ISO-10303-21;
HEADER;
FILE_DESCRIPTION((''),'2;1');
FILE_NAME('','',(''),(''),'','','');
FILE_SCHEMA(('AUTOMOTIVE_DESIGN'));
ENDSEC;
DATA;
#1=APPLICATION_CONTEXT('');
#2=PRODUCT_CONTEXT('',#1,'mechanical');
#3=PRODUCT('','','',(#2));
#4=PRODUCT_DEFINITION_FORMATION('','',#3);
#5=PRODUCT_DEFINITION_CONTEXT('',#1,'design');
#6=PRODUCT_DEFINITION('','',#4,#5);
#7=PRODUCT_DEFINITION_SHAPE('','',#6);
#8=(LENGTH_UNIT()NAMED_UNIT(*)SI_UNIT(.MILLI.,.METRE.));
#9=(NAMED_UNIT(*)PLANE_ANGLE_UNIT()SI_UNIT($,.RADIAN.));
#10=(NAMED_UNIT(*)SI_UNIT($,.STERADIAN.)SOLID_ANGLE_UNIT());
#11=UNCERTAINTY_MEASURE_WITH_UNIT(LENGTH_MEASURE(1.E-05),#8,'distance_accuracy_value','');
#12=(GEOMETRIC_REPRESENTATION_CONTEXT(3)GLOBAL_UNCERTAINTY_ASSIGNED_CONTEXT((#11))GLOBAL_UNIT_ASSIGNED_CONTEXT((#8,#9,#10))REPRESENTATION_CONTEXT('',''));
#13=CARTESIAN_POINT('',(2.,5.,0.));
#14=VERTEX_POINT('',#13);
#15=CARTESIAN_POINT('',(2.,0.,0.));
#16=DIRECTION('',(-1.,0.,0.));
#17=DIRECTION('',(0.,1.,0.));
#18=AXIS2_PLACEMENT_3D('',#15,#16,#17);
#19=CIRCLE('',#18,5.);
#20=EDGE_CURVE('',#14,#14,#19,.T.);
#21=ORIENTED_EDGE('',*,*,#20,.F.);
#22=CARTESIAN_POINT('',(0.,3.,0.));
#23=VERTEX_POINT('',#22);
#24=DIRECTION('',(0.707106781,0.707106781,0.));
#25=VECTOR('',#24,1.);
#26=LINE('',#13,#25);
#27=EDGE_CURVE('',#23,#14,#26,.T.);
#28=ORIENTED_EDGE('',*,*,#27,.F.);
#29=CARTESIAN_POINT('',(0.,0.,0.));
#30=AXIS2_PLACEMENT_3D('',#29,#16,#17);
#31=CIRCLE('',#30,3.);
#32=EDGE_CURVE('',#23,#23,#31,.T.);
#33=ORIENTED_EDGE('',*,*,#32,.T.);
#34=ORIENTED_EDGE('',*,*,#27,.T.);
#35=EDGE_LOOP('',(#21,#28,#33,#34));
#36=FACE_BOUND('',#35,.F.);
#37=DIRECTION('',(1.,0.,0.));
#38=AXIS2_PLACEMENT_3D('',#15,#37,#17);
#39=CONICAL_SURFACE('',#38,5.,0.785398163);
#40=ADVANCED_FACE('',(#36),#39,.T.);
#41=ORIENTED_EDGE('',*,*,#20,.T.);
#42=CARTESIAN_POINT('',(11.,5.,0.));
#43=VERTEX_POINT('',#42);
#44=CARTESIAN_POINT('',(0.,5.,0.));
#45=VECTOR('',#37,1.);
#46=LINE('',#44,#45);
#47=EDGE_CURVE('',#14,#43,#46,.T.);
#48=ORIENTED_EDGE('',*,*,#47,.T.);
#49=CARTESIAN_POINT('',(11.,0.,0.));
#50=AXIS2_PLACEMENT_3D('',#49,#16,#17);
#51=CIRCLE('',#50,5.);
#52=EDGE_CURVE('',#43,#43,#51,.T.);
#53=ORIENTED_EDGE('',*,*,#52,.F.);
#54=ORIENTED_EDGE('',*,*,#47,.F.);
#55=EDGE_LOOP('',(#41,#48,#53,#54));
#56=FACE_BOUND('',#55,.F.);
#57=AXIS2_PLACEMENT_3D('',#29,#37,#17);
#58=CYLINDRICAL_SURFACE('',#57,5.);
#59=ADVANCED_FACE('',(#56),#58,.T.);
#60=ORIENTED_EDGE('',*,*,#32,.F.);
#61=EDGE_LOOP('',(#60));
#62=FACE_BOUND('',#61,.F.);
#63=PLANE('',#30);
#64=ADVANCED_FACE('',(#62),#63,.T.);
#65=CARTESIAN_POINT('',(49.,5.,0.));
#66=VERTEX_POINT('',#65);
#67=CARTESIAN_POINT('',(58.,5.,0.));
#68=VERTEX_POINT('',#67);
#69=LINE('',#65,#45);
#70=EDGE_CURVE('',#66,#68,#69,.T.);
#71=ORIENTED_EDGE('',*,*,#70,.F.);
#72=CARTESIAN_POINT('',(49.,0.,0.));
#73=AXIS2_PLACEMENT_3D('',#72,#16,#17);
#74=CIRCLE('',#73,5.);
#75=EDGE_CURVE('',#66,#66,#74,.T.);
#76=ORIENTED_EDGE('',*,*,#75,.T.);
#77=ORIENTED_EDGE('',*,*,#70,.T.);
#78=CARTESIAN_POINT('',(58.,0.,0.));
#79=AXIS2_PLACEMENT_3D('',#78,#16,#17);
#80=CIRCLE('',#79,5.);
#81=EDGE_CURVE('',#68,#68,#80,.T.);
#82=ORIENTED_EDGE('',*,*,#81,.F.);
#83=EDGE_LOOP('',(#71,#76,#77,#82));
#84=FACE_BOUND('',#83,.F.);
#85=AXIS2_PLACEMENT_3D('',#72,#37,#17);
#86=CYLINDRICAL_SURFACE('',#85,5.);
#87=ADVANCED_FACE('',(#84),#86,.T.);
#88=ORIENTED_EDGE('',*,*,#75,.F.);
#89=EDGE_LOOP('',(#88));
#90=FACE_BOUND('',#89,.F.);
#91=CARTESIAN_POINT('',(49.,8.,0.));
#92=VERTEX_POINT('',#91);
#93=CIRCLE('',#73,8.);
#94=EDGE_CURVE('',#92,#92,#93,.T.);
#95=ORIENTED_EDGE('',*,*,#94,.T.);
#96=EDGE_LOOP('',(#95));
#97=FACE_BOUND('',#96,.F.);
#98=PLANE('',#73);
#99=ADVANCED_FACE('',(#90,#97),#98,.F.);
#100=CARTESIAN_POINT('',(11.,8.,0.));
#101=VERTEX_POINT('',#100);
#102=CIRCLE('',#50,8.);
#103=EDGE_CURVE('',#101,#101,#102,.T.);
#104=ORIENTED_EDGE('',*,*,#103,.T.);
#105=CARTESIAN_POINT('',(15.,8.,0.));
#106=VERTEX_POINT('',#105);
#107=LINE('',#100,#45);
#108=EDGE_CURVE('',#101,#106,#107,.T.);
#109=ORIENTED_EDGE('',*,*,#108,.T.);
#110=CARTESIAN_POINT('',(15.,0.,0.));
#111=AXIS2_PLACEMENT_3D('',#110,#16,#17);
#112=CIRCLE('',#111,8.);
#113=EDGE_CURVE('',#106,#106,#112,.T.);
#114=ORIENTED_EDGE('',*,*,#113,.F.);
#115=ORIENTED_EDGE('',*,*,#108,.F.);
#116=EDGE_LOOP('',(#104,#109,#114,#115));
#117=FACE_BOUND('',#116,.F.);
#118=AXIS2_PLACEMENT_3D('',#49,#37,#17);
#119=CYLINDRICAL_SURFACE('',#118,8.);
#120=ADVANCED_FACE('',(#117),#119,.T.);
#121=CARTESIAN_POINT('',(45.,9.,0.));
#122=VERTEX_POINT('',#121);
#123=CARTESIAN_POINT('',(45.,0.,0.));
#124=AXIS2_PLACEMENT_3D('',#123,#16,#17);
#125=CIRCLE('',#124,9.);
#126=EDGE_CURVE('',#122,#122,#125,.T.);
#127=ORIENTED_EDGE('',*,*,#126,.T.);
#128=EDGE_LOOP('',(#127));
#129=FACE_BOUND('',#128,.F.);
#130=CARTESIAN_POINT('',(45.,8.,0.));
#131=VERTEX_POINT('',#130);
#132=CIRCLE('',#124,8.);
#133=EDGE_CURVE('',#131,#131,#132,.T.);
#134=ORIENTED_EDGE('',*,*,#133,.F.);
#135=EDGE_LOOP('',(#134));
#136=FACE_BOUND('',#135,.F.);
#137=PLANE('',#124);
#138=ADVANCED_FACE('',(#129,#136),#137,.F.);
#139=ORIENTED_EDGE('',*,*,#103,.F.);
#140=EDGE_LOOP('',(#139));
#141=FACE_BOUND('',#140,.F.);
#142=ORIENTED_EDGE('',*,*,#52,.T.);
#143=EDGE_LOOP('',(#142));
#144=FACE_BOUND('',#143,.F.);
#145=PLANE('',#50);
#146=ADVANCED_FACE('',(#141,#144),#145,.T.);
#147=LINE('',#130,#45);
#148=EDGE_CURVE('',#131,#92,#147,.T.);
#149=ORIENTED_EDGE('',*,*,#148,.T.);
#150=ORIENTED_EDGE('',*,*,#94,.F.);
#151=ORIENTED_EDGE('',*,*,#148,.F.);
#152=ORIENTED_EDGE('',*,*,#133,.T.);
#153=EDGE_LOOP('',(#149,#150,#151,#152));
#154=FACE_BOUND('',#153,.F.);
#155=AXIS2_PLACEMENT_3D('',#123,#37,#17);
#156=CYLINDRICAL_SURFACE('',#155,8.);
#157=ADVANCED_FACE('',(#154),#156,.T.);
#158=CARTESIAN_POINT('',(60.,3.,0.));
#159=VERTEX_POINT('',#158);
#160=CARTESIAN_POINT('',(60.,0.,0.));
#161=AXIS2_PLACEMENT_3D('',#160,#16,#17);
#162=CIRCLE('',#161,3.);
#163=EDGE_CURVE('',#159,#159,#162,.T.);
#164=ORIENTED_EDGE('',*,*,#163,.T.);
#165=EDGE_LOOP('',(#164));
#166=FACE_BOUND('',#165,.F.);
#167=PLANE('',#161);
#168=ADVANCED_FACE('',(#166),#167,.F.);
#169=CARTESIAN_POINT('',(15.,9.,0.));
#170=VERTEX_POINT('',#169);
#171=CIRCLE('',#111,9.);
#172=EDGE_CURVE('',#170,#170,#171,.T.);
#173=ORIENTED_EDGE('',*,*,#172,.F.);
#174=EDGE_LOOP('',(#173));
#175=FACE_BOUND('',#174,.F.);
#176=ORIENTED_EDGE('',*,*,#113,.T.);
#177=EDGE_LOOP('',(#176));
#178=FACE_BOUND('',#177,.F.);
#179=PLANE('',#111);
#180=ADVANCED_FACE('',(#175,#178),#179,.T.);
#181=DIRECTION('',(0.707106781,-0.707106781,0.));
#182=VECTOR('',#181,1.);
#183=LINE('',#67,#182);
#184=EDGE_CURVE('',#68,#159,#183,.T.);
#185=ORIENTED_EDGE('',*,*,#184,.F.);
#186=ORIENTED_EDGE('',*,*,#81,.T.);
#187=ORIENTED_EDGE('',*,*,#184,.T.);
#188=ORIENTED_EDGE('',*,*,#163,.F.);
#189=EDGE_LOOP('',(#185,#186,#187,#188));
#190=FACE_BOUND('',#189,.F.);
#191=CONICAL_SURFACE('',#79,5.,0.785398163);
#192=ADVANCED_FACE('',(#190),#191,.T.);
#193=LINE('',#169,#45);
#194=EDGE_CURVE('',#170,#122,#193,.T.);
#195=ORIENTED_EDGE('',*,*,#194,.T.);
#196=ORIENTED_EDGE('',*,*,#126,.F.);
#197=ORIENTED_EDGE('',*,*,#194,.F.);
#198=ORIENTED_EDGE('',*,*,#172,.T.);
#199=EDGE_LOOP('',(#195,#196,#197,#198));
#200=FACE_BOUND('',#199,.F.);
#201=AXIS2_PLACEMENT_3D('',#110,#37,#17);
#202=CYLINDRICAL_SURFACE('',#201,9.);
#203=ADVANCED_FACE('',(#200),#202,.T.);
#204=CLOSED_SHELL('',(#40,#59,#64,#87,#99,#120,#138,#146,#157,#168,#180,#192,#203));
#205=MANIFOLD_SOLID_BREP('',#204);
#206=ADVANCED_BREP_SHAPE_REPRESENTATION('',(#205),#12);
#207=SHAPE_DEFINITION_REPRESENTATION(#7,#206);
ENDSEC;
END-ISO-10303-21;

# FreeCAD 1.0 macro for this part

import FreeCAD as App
import Part
import Sketcher
from FreeCAD import Vector


def edges_at(feature, points):
    """Names of the edges that pass closest to the given points."""
    edges = feature.Shape.Edges
    near = lambda p: min(range(len(edges)), key=lambda i: edges[i].distToShape(Part.Vertex(*p))[0])
    return sorted({f"Edge{near(p) + 1}" for p in points})

doc = App.newDocument("Part")
body = doc.addObject("PartDesign::Body", "Body")

sketch1 = doc.addObject("Sketcher::SketchObject", "Sketch")
body.addObject(sketch1)
sketch1.AttachmentSupport = (doc.XY_Plane, [""])
sketch1.MapMode = "FlatFace"
sketch1.addGeometry([
    Part.LineSegment(Vector(0, 5, 0), Vector(0, 0, 0)),
    Part.LineSegment(Vector(0, 0, 0), Vector(60, 0, 0)),
    Part.LineSegment(Vector(60, 0, 0), Vector(60, 5, 0)),
    Part.LineSegment(Vector(60, 5, 0), Vector(49, 5, 0)),
    Part.LineSegment(Vector(49, 5, 0), Vector(49, 8, 0)),
    Part.LineSegment(Vector(49, 8, 0), Vector(45, 8, 0)),
    Part.LineSegment(Vector(45, 8, 0), Vector(45, 9, 0)),
    Part.LineSegment(Vector(45, 9, 0), Vector(15, 9, 0)),
    Part.LineSegment(Vector(15, 9, 0), Vector(15, 8, 0)),
    Part.LineSegment(Vector(15, 8, 0), Vector(11, 8, 0)),
    Part.LineSegment(Vector(11, 8, 0), Vector(11, 5, 0)),
    Part.LineSegment(Vector(11, 5, 0), Vector(0, 5, 0)),
], False)
sketch1.addConstraint([
    Sketcher.Constraint("Coincident", 0, 2, 1, 1),
    Sketcher.Constraint("Coincident", 1, 2, 2, 1),
    Sketcher.Constraint("Coincident", 2, 2, 3, 1),
    Sketcher.Constraint("Coincident", 3, 2, 4, 1),
    Sketcher.Constraint("Coincident", 4, 2, 5, 1),
    Sketcher.Constraint("Coincident", 5, 2, 6, 1),
    Sketcher.Constraint("Coincident", 6, 2, 7, 1),
    Sketcher.Constraint("Coincident", 7, 2, 8, 1),
    Sketcher.Constraint("Coincident", 8, 2, 9, 1),
    Sketcher.Constraint("Coincident", 9, 2, 10, 1),
    Sketcher.Constraint("Coincident", 10, 2, 11, 1),
    Sketcher.Constraint("Coincident", 11, 2, 0, 1),
    Sketcher.Constraint("Vertical", 0),
    Sketcher.Constraint("Horizontal", 1),
    Sketcher.Constraint("Vertical", 2),
    Sketcher.Constraint("Horizontal", 3),
    Sketcher.Constraint("Vertical", 4),
    Sketcher.Constraint("Horizontal", 5),
    Sketcher.Constraint("Vertical", 6),
    Sketcher.Constraint("Horizontal", 7),
    Sketcher.Constraint("Vertical", 8),
    Sketcher.Constraint("Horizontal", 9),
    Sketcher.Constraint("Vertical", 10),
    Sketcher.Constraint("Horizontal", 11),
    Sketcher.Constraint("Coincident", 0, 2, -1, 1),
    Sketcher.Constraint("Horizontal", 5, 2, 8, 2),
    Sketcher.Constraint("Horizontal", 3, 2, 10, 2),
    Sketcher.Constraint("Equal", 5, 9),
    Sketcher.Constraint("Equal", 3, 11),
    Sketcher.Constraint("DistanceX", 3, 2, 3, 1, 11.0),
    Sketcher.Constraint("DistanceX", -1, 1, 5, 2, 45.0),
    Sketcher.Constraint("DistanceX", -1, 1, 7, 2, 15.0),
    Sketcher.Constraint("DistanceY", 0, 2, 0, 1, 5.0),
    Sketcher.Constraint("DistanceY", 4, 1, 4, 2, 3.0),
    Sketcher.Constraint("DistanceY", 6, 1, 6, 2, 1.0),
])
revolution = doc.addObject("PartDesign::Revolution", "Revolution")
body.addObject(revolution)
revolution.Profile = sketch1
revolution.ReferenceAxis = (sketch1, ["H_Axis"])
revolution.Angle = 360
doc.recompute()

chamfer = doc.addObject("PartDesign::Chamfer", "Chamfer")
body.addObject(chamfer)
chamfer.Base = (revolution, edges_at(revolution, [(0, -5, 0), (60, -5, 0)]))
chamfer.Size = 2

doc.recompute()
